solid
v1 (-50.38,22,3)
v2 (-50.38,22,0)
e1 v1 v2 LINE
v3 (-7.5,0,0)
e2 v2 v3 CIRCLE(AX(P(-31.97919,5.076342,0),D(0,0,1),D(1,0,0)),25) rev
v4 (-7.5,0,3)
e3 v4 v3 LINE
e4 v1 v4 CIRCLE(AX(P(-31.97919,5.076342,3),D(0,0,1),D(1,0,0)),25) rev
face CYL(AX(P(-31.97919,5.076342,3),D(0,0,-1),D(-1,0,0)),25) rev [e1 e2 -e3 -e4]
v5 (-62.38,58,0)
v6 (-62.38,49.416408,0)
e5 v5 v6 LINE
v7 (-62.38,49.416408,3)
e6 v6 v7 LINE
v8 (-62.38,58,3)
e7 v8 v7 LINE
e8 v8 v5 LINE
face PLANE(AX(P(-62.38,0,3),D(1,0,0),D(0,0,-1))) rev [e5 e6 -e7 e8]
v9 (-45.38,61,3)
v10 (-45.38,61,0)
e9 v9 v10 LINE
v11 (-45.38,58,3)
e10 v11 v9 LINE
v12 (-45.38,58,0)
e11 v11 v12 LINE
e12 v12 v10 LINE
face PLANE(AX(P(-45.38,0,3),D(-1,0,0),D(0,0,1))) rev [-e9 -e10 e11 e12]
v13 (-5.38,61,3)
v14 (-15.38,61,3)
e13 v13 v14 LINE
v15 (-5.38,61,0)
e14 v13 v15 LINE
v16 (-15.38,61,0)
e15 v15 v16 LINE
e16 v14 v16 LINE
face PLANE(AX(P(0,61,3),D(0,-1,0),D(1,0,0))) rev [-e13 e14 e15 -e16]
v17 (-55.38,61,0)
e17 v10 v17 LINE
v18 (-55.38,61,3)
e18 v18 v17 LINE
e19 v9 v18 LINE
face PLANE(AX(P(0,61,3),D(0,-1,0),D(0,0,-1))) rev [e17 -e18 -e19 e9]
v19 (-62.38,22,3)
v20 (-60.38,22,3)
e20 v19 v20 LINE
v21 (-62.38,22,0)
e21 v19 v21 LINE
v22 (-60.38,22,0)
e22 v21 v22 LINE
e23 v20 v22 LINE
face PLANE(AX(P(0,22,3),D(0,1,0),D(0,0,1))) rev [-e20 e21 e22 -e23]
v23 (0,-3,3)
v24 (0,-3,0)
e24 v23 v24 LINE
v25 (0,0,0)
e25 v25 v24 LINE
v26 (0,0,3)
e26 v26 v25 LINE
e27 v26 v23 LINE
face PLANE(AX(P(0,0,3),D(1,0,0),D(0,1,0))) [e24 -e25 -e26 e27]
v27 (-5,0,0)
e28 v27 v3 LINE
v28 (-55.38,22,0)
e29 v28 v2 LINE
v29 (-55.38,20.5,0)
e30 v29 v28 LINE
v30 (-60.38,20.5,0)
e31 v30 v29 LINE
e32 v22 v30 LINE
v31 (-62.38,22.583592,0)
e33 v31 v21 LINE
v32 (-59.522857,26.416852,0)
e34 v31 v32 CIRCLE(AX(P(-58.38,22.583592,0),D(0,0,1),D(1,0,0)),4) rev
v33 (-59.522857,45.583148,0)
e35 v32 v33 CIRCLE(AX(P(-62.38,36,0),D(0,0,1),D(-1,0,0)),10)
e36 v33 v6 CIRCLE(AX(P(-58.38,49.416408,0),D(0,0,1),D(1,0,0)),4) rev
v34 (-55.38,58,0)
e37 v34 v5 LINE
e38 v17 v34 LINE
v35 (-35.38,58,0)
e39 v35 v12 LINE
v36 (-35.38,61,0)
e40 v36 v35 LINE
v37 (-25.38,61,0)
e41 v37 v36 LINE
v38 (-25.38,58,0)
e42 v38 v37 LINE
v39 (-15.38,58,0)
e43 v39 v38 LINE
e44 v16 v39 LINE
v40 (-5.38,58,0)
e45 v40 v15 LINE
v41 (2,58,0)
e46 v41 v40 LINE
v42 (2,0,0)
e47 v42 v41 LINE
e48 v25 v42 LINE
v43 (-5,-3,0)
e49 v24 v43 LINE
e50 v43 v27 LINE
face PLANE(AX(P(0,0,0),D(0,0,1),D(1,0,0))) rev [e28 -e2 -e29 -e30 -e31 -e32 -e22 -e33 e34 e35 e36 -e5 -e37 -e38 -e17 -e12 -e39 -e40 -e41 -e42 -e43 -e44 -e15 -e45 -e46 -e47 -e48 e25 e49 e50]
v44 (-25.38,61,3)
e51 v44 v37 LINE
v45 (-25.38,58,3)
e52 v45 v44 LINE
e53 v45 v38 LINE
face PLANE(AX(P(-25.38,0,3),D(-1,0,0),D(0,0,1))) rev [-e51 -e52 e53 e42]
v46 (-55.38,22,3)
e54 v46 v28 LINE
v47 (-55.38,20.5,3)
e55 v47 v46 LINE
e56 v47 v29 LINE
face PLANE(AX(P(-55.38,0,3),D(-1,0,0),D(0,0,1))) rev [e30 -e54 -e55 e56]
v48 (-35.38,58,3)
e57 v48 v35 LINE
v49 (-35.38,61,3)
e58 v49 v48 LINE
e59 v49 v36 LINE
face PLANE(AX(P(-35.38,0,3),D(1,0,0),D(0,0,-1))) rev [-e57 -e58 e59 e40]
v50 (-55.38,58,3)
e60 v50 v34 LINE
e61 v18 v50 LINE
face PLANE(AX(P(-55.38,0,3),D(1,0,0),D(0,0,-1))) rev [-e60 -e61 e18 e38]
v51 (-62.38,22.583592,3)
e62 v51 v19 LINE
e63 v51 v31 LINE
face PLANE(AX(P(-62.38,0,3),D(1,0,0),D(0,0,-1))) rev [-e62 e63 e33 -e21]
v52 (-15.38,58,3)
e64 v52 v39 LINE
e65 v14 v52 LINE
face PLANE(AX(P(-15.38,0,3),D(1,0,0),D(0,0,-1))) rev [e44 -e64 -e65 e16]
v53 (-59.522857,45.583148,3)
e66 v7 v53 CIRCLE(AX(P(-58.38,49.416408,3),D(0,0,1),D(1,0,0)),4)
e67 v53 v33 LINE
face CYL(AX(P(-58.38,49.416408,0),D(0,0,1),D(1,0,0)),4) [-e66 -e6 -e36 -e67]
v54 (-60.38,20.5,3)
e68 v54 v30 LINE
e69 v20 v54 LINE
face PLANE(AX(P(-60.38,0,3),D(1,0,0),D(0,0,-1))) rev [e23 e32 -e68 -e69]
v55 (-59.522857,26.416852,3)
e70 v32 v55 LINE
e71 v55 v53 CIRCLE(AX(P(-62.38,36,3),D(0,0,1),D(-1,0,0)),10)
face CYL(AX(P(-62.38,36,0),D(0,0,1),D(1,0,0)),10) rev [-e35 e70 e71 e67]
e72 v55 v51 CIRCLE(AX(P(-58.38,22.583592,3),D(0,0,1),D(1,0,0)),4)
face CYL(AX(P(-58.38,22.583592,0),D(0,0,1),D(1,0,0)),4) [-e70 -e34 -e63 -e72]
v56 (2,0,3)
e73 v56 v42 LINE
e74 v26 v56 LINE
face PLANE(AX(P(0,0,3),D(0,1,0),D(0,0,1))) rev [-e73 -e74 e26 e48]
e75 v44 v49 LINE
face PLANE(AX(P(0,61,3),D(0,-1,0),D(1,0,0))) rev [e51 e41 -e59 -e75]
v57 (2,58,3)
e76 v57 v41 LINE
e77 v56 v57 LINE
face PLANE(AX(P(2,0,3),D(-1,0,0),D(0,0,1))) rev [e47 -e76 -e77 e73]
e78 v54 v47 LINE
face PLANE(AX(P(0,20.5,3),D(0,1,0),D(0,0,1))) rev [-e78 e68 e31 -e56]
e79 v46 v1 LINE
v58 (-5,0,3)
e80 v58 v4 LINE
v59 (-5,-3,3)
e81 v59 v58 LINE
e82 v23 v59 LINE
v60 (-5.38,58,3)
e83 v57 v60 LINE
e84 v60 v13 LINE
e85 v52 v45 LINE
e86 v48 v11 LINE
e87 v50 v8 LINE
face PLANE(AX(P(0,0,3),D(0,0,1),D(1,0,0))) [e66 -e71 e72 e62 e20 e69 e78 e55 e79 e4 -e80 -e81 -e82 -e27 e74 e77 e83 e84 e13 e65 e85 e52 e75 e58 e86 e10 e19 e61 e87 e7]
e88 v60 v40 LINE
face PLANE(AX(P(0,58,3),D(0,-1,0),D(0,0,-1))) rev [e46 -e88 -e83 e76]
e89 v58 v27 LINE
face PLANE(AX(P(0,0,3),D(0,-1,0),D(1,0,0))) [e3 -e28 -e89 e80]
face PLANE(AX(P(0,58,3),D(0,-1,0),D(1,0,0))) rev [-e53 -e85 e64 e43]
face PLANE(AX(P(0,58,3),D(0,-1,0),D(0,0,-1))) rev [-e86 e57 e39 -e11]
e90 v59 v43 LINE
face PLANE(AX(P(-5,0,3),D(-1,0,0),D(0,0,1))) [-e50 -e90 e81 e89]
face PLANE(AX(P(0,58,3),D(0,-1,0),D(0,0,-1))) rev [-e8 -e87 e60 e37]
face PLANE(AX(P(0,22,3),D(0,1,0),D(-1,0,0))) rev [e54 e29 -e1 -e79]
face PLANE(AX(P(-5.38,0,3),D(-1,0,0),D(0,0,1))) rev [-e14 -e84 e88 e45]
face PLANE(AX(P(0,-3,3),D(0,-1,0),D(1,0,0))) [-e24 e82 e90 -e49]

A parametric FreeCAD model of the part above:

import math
import FreeCAD as App
import Part
import Sketcher

V = App.Vector
Q = App.Units.Quantity


def edges_at(feature, points):
    """Names of the edges that pass closest to the given points."""
    edges = feature.Shape.Edges
    near = lambda p: min(range(len(edges)), key=lambda i: edges[i].distToShape(Part.Vertex(*p))[0])
    return sorted({f"Edge{near(p) + 1}" for p in points})

doc = App.newDocument("Part")
body = doc.addObject("PartDesign::Body", "Body")

# Sketch on XY plane
sketch1 = body.newObject("Sketcher::SketchObject", "Sketch")
sketch1.AttachmentSupport = (doc.getObject("XY_Plane"), [""])
sketch1.MapMode = "FlatFace"
sketch1.addGeometry([
    Part.LineSegment(V(0, -3, 0), V(0, 0, 0)),  # 0
    Part.LineSegment(V(0, 0, 0), V(2, 0, 0)),  # 1
    Part.LineSegment(V(2, 0, 0), V(2, 58, 0)),  # 2
    Part.LineSegment(V(2, 58, 0), V(-5.38, 58, 0)),  # 3
    Part.LineSegment(V(-5.38, 58, 0), V(-5.38, 61, 0)),  # 4
    Part.LineSegment(V(-5.38, 61, 0), V(-15.38, 61, 0)),  # 5
    Part.LineSegment(V(-15.38, 61, 0), V(-15.38, 58, 0)),  # 6
    Part.LineSegment(V(-15.38, 58, 0), V(-25.38, 58, 0)),  # 7
    Part.LineSegment(V(-25.38, 58, 0), V(-25.38, 61, 0)),  # 8
    Part.LineSegment(V(-25.38, 61, 0), V(-35.38, 61, 0)),  # 9
    Part.LineSegment(V(-35.38, 61, 0), V(-35.38, 58, 0)),  # 10
    Part.LineSegment(V(-35.38, 58, 0), V(-45.38, 58, 0)),  # 11
    Part.LineSegment(V(-45.38, 58, 0), V(-45.38, 61, 0)),  # 12
    Part.LineSegment(V(-45.38, 61, 0), V(-55.38, 61, 0)),  # 13
    Part.LineSegment(V(-55.38, 61, 0), V(-55.38, 58, 0)),  # 14
    Part.LineSegment(V(-55.38, 58, 0), V(-62.38, 58, 0)),  # 15
    Part.LineSegment(V(-62.38, 58, 0), V(-62.38, 22, 0)),  # 16
    Part.LineSegment(V(-62.38, 22, 0), V(-60.38, 22, 0)),  # 17
    Part.LineSegment(V(-60.38, 22, 0), V(-60.38, 20.5, 0)),  # 18
    Part.LineSegment(V(-60.38, 20.5, 0), V(-55.38, 20.5, 0)),  # 19
    Part.LineSegment(V(-55.38, 20.5, 0), V(-55.38, 22, 0)),  # 20
    Part.LineSegment(V(-55.38, 22, 0), V(-50.38, 22, 0)),  # 21
    Part.ArcOfCircle(Part.Circle(V(-31.97919, 5.076342, 0), V(0, 0, 1), 25), math.radians(-11.715587), math.radians(137.394524)),  # 22
    Part.LineSegment(V(-7.5, 0, 0), V(-5, 0, 0)),  # 23
    Part.LineSegment(V(-5, 0, 0), V(-5, -3, 0)),  # 24
    Part.LineSegment(V(-5, -3, 0), V(0, -3, 0)),  # 25
], False)
sketch1.addConstraint([
    Sketcher.Constraint("Coincident", 0, 2, 1, 1),
    Sketcher.Constraint("Coincident", 1, 2, 2, 1),
    Sketcher.Constraint("Coincident", 2, 2, 3, 1),
    Sketcher.Constraint("Coincident", 3, 2, 4, 1),
    Sketcher.Constraint("Coincident", 4, 2, 5, 1),
    Sketcher.Constraint("Coincident", 5, 2, 6, 1),
    Sketcher.Constraint("Coincident", 6, 2, 7, 1),
    Sketcher.Constraint("Coincident", 7, 2, 8, 1),
    Sketcher.Constraint("Coincident", 8, 2, 9, 1),
    Sketcher.Constraint("Coincident", 9, 2, 10, 1),
    Sketcher.Constraint("Coincident", 10, 2, 11, 1),
    Sketcher.Constraint("Coincident", 11, 2, 12, 1),
    Sketcher.Constraint("Coincident", 12, 2, 13, 1),
    Sketcher.Constraint("Coincident", 13, 2, 14, 1),
    Sketcher.Constraint("Coincident", 14, 2, 15, 1),
    Sketcher.Constraint("Coincident", 15, 2, 16, 1),
    Sketcher.Constraint("Coincident", 16, 2, 17, 1),
    Sketcher.Constraint("Coincident", 17, 2, 18, 1),
    Sketcher.Constraint("Coincident", 18, 2, 19, 1),
    Sketcher.Constraint("Coincident", 19, 2, 20, 1),
    Sketcher.Constraint("Coincident", 20, 2, 21, 1),
    Sketcher.Constraint("Coincident", 21, 2, 22, 2),
    Sketcher.Constraint("Coincident", 22, 1, 23, 1),
    Sketcher.Constraint("Coincident", 23, 2, 24, 1),
    Sketcher.Constraint("Coincident", 24, 2, 25, 1),
    Sketcher.Constraint("Coincident", 25, 2, 0, 1),
    Sketcher.Constraint("Vertical", 0),
    Sketcher.Constraint("Horizontal", 1),
    Sketcher.Constraint("Vertical", 2),
    Sketcher.Constraint("Horizontal", 3),
    Sketcher.Constraint("Vertical", 4),
    Sketcher.Constraint("Horizontal", 5),
    Sketcher.Constraint("Vertical", 6),
    Sketcher.Constraint("Horizontal", 7),
    Sketcher.Constraint("Vertical", 8),
    Sketcher.Constraint("Horizontal", 9),
    Sketcher.Constraint("Vertical", 10),
    Sketcher.Constraint("Horizontal", 11),
    Sketcher.Constraint("Vertical", 12),
    Sketcher.Constraint("Horizontal", 13),
    Sketcher.Constraint("Vertical", 14),
    Sketcher.Constraint("Horizontal", 15),
    Sketcher.Constraint("Vertical", 16),
    Sketcher.Constraint("Horizontal", 17),
    Sketcher.Constraint("Vertical", 18),
    Sketcher.Constraint("Horizontal", 19),
    Sketcher.Constraint("Vertical", 20),
    Sketcher.Constraint("Horizontal", 21),
    Sketcher.Constraint("Horizontal", 23),
    Sketcher.Constraint("Vertical", 24),
    Sketcher.Constraint("Horizontal", 25),
    Sketcher.Constraint("Coincident", 0, 2, -1, 1),
    Sketcher.Constraint("PointOnObject", 22, 1, -1),
    Sketcher.Constraint("Horizontal", 3, 2, 6, 2),
    Sketcher.Constraint("Horizontal", 5, 2, 8, 2),
    Sketcher.Constraint("Horizontal", 7, 2, 10, 2),
    Sketcher.Constraint("Horizontal", 9, 2, 12, 2),
    Sketcher.Constraint("Horizontal", 11, 2, 14, 2),
    Sketcher.Constraint("Horizontal", 17, 2, 20, 2),
    Sketcher.Constraint("Vertical", 14, 2, 19, 2),
    Sketcher.Constraint("Equal", 5, 7),
    Sketcher.Constraint("Equal", 7, 9),
    Sketcher.Constraint("Equal", 9, 11),
    Sketcher.Constraint("Equal", 11, 13),
    Sketcher.Constraint("Equal", 1, 17),
    Sketcher.Constraint("Equal", 19, 21),
    Sketcher.Constraint("Equal", 21, 25),
    Sketcher.Constraint("Equal", 0, 4),
    Sketcher.Constraint("Radius", 22, Q("25 mm")),
    Sketcher.Constraint("DistanceX", 1, 1, 1, 2, Q("2 mm")),
    Sketcher.Constraint("DistanceX", 5, 2, 5, 1, Q("10 mm")),
    Sketcher.Constraint("DistanceX", 15, 2, 15, 1, Q("7 mm")),
    Sketcher.Constraint("DistanceY", 0, 1, 0, 2, Q("3 mm")),
    Sketcher.Constraint("DistanceY", 2, 1, 2, 2, Q("58 mm")),
    Sketcher.Constraint("DistanceY", 16, 2, 16, 1, Q("36 mm")),
    Sketcher.Constraint("DistanceX", 23, 1, 23, 2, Q("2.5 mm")),
    Sketcher.Constraint("DistanceY", 18, 2, 18, 1, Q("1.5 mm")),
    Sketcher.Constraint("DistanceX", 3, 2, 3, 1, Q("7.38 mm")),
])
pad1 = body.newObject("PartDesign::Pad", "Pad")
pad1.Profile = sketch1
pad1.Length = 3

# Sketch on XY plane
sketch2 = body.newObject("Sketcher::SketchObject", "Sketch001")
sketch2.AttachmentSupport = (doc.getObject("XY_Plane"), [""])
sketch2.MapMode = "FlatFace"
sketch2.AttachmentOffset = App.Placement(V(0, 0, 3), App.Rotation())
sketch2.addGeometry([
    Part.LineSegment(V(-62.38, 46, 0), V(-62.38, 26, 0)),
    Part.ArcOfCircle(Part.Circle(V(-62.38, 36, 0), V(0, 0, 1), 10), math.radians(-90), math.radians(90)),
], False)
sketch2.addConstraint([
    Sketcher.Constraint("Coincident", 0, 1, 1, 2),
    Sketcher.Constraint("Coincident", 1, 1, 0, 2),
    Sketcher.Constraint("Vertical", 0),
    Sketcher.Constraint("Vertical", 1, 3, 0, 1),
    Sketcher.Constraint("Radius", 1, Q("10 mm")),
    Sketcher.Constraint("DistanceY", -1, 1, 1, 3, Q("36 mm")),
    Sketcher.Constraint("DistanceX", 1, 3, -1, 1, Q("62.38 mm")),
])
pocket1 = body.newObject("PartDesign::Pocket", "Pocket")
pocket1.Profile = sketch2
pocket1.Length = 3
doc.recompute()

fillet = body.newObject("PartDesign::Fillet", "Fillet")
fillet.Base = (pocket1, edges_at(pocket1, [(-62.38, 46, 1.5), (-62.38, 26, 1.5)]))
fillet.Radius = 4

doc.recompute()
